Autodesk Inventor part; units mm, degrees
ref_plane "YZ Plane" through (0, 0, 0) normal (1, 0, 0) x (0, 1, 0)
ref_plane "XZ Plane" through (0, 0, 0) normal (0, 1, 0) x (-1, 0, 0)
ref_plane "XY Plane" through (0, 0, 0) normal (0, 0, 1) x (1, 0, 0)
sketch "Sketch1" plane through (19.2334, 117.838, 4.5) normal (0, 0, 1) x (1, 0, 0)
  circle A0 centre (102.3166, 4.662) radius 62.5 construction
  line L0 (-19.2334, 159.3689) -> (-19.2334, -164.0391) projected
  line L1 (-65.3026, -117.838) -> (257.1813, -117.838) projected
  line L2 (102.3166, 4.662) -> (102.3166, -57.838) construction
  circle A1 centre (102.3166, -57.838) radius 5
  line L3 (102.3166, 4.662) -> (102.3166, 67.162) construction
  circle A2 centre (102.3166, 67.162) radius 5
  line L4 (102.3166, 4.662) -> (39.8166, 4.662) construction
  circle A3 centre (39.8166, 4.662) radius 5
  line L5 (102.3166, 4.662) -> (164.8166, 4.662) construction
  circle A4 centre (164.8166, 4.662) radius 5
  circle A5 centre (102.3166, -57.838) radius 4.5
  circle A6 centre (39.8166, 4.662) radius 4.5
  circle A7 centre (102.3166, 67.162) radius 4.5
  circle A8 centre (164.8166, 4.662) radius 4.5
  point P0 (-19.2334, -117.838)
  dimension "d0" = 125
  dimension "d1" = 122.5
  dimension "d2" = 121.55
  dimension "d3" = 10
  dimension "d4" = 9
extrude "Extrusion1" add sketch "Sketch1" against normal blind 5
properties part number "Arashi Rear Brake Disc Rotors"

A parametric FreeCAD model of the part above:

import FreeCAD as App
import Part
import Sketcher
from FreeCAD import Vector
Q = App.Units.Quantity

doc = App.newDocument("Part")
body = doc.addObject("PartDesign::Body", "Body")
body.AllowCompound = True

sketch1 = body.newObject("Sketcher::SketchObject", "Sketch")
sketch1.AttachmentSupport = (doc.getObject("XY_Plane"), [""])
sketch1.MapMode = "FlatFace"
sketch1.AttachmentOffset = App.Placement(Vector(0, 0, 4.5), App.Rotation())
sketch1.addGeometry(Part.Circle(Vector(121.55, 60, 0), Vector(0, 0, 1), 5), False)
sketch1.addGeometry(Part.Circle(Vector(121.55, 60, 0), Vector(0, 0, 1), 4.5), False)
sketch1.addGeometry(Part.Circle(Vector(121.55, 185, 0), Vector(0, 0, 1), 5), False)
sketch1.addGeometry(Part.Circle(Vector(121.55, 185, 0), Vector(0, 0, 1), 4.5), False)
sketch1.addGeometry(Part.Circle(Vector(59.05, 122.5, 0), Vector(0, 0, 1), 5), False)
sketch1.addGeometry(Part.Circle(Vector(59.05, 122.5, 0), Vector(0, 0, 1), 4.5), False)
sketch1.addGeometry(Part.Circle(Vector(184.05, 122.5, 0), Vector(0, 0, 1), 5), False)
sketch1.addGeometry(Part.Circle(Vector(184.05, 122.5, 0), Vector(0, 0, 1), 4.5), False)
sketch1.addConstraint(Sketcher.Constraint("Coincident", 1, 3, 0, 3))
sketch1.addConstraint(Sketcher.Constraint("Coincident", 3, 3, 2, 3))
sketch1.addConstraint(Sketcher.Constraint("Coincident", 5, 3, 4, 3))
sketch1.addConstraint(Sketcher.Constraint("Coincident", 7, 3, 6, 3))
sketch1.addConstraint(Sketcher.Constraint("Equal", 0, 2))
sketch1.addConstraint(Sketcher.Constraint("Equal", 1, 3))
sketch1.addConstraint(Sketcher.Constraint("Equal", 2, 4))
sketch1.addConstraint(Sketcher.Constraint("Equal", 3, 5))
sketch1.addConstraint(Sketcher.Constraint("Equal", 4, 6))
sketch1.addConstraint(Sketcher.Constraint("Equal", 5, 7))
sketch1.addConstraint(Sketcher.Constraint("Horizontal", 5, 3, 6, 3))
sketch1.addConstraint(Sketcher.Constraint("Vertical", 1, 3, 2, 3))
sketch1.addConstraint(Sketcher.Constraint("Diameter", 0, Q("10 mm")))
sketch1.addConstraint(Sketcher.Constraint("Diameter", 1, Q("9 mm")))
sketch1.addConstraint(Sketcher.Constraint("DistanceY", 0, 3, 2, 3, Q("125 mm")))
sketch1.addConstraint(Sketcher.Constraint("DistanceX", 4, 3, 6, 3, Q("125 mm")))
sketch1.addConstraint(Sketcher.Constraint("DistanceY", -1, 1, 4, 3, Q("122.5 mm")))
sketch1.addConstraint(Sketcher.Constraint("DistanceX", -1, 1, 0, 3, Q("121.55 mm")))
sketch1.addConstraint(Sketcher.Constraint("DistanceY", -1, 1, 0, 3, Q("60 mm")))
sketch1.addConstraint(Sketcher.Constraint("DistanceX", 4, 3, 0, 3, Q("62.5 mm")))
pad1 = body.newObject("PartDesign::Pad", "Pad")
pad1.Profile = sketch1
pad1.Length = 5
pad1.Reversed = True

doc.recompute()
